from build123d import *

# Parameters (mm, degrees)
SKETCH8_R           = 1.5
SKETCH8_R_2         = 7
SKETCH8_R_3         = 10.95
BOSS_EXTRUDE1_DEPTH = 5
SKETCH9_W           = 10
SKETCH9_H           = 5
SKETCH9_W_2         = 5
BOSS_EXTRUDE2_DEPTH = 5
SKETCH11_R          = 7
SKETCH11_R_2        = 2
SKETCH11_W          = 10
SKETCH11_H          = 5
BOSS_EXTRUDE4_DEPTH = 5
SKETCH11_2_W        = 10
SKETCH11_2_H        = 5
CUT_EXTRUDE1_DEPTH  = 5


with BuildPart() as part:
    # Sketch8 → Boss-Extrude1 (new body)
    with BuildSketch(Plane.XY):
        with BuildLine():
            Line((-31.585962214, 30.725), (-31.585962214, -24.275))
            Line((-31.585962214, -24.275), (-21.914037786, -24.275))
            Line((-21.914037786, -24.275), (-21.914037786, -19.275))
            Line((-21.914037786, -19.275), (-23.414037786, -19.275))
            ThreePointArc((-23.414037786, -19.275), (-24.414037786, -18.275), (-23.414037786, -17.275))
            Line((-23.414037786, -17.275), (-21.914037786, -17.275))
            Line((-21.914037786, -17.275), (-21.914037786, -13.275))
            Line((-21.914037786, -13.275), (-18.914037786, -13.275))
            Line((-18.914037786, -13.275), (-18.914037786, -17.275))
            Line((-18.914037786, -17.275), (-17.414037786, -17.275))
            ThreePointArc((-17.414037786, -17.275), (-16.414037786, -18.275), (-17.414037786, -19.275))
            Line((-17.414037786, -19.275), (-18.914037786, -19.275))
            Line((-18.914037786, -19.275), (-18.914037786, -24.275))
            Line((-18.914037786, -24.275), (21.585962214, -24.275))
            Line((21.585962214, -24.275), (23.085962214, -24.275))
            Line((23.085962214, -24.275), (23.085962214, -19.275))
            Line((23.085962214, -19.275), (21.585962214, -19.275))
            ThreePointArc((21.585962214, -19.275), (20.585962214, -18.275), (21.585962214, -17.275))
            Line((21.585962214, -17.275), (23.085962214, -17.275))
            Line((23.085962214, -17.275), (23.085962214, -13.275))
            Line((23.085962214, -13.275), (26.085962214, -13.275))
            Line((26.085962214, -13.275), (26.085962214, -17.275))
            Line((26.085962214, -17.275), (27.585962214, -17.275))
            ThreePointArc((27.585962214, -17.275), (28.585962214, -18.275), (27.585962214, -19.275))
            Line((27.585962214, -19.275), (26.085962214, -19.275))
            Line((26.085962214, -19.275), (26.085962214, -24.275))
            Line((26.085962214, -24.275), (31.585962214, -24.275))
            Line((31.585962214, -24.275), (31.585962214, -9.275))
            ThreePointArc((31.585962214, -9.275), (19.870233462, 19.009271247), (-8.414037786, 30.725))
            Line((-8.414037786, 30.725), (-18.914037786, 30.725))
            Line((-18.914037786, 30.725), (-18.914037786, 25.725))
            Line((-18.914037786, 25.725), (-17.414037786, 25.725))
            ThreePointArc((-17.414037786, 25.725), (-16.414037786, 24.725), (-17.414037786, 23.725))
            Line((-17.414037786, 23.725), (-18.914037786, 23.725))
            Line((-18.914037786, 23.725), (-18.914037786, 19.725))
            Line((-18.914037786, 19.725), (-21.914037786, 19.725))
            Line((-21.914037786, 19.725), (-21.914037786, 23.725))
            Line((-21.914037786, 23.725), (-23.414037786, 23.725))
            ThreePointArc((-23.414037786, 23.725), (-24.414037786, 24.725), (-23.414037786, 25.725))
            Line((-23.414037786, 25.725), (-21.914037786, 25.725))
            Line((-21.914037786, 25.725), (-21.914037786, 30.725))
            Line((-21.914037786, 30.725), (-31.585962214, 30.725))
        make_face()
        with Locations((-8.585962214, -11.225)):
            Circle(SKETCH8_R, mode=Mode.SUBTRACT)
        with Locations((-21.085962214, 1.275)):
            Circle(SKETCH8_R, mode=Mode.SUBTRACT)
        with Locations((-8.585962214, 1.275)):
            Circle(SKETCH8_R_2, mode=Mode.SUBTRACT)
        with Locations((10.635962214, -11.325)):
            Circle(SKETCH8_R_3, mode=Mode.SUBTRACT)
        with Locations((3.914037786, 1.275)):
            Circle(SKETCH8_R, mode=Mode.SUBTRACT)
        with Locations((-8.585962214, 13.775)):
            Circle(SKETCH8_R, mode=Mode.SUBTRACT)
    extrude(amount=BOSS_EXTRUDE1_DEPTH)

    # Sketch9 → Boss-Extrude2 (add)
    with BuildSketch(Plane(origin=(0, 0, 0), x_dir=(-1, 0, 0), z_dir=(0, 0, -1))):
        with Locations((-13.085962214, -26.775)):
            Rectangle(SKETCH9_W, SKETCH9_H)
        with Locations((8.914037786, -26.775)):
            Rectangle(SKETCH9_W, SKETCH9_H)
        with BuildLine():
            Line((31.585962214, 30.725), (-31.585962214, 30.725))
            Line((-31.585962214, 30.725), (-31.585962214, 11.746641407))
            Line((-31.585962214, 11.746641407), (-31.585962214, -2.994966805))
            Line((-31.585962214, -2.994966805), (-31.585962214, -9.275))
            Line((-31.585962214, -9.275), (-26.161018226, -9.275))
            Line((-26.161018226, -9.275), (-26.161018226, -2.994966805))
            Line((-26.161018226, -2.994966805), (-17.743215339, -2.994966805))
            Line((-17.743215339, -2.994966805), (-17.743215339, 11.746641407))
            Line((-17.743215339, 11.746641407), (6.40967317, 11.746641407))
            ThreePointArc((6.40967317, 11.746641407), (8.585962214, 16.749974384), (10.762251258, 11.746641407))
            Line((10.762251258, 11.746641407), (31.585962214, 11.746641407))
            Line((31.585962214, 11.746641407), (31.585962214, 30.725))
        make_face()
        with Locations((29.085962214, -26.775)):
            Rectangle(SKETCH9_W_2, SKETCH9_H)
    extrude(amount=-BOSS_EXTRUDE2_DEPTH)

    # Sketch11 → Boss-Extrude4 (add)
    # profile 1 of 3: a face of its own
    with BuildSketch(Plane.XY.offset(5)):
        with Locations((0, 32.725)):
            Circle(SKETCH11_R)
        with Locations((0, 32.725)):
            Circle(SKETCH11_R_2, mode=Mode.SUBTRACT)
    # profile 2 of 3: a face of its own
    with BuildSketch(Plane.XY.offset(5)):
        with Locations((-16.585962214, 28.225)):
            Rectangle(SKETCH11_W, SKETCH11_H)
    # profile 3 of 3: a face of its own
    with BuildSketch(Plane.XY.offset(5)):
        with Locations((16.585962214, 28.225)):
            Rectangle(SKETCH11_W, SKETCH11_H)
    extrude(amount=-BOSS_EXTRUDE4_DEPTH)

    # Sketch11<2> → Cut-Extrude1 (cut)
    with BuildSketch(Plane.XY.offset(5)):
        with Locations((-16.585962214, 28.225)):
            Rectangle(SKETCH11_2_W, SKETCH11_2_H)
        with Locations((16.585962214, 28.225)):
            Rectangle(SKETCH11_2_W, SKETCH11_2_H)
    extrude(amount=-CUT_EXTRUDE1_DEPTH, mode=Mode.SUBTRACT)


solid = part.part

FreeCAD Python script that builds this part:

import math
import FreeCAD as App
import Part
import Sketcher
Q = App.Units.Quantity


def add_polygon(sketch, points):
    """Adds a closed chain of lines whose ends are joined by coincident constraints."""
    first, n = sketch.GeometryCount, len(points)
    for a, b in zip(points, points[1:] + points[:1]):
        sketch.addGeometry(Part.LineSegment(App.Vector(*a, 0), App.Vector(*b, 0)), False)
    for i in range(n):
        sketch.addConstraint(Sketcher.Constraint("Coincident", first + i, 2, first + (i + 1) % n, 1))

doc = App.newDocument("Part")
body = doc.addObject("PartDesign::Body", "Body")

sketch1 = doc.addObject("Sketcher::SketchObject", "Sketch")
body.addObject(sketch1)
sketch1.AttachmentSupport = (doc.XY_Plane, [""])
sketch1.MapMode = "FlatFace"
sketch1.addGeometry([
    Part.LineSegment(App.Vector(-31.6, 30.7, 0), App.Vector(-31.6, -24.3, 0)),
    Part.LineSegment(App.Vector(-31.6, -24.3, 0), App.Vector(-21.9, -24.3, 0)),
    Part.LineSegment(App.Vector(-21.9, -24.3, 0), App.Vector(-21.9, -19.3, 0)),
    Part.LineSegment(App.Vector(-21.9, -19.3, 0), App.Vector(-23.4, -19.3, 0)),
    Part.ArcOfCircle(Part.Circle(App.Vector(-23.4, -18.3, 0), App.Vector(0, 0, 1), 1), math.radians(90), math.radians(270)),
    Part.LineSegment(App.Vector(-23.4, -17.3, 0), App.Vector(-21.9, -17.3, 0)),
    Part.LineSegment(App.Vector(-21.9, -17.3, 0), App.Vector(-21.9, -13.3, 0)),
    Part.LineSegment(App.Vector(-21.9, -13.3, 0), App.Vector(-18.9, -13.3, 0)),
    Part.LineSegment(App.Vector(-18.9, -13.3, 0), App.Vector(-18.9, -17.3, 0)),
    Part.LineSegment(App.Vector(-18.9, -17.3, 0), App.Vector(-17.4, -17.3, 0)),
    Part.ArcOfCircle(Part.Circle(App.Vector(-17.4, -18.3, 0), App.Vector(0, 0, 1), 1), math.radians(-90), math.radians(90)),
    Part.LineSegment(App.Vector(-17.4, -19.3, 0), App.Vector(-18.9, -19.3, 0)),
    Part.LineSegment(App.Vector(-18.9, -19.3, 0), App.Vector(-18.9, -24.3, 0)),
    Part.LineSegment(App.Vector(-18.9, -24.3, 0), App.Vector(23.1, -24.3, 0)),
    Part.LineSegment(App.Vector(23.1, -24.3, 0), App.Vector(23.1, -19.3, 0)),
    Part.LineSegment(App.Vector(23.1, -19.3, 0), App.Vector(21.6, -19.3, 0)),
    Part.ArcOfCircle(Part.Circle(App.Vector(21.6, -18.3, 0), App.Vector(0, 0, 1), 1), math.radians(90), math.radians(270)),
    Part.LineSegment(App.Vector(21.6, -17.3, 0), App.Vector(23.1, -17.3, 0)),
    Part.LineSegment(App.Vector(23.1, -17.3, 0), App.Vector(23.1, -13.3, 0)),
    Part.LineSegment(App.Vector(23.1, -13.3, 0), App.Vector(26.1, -13.3, 0)),
    Part.LineSegment(App.Vector(26.1, -13.3, 0), App.Vector(26.1, -17.3, 0)),
    Part.LineSegment(App.Vector(26.1, -17.3, 0), App.Vector(27.6, -17.3, 0)),
    Part.ArcOfCircle(Part.Circle(App.Vector(27.6, -18.3, 0), App.Vector(0, 0, 1), 1), math.radians(-90), math.radians(90)),
    Part.LineSegment(App.Vector(27.6, -19.3, 0), App.Vector(26.1, -19.3, 0)),
    Part.LineSegment(App.Vector(26.1, -19.3, 0), App.Vector(26.1, -24.3, 0)),
    Part.LineSegment(App.Vector(26.1, -24.3, 0), App.Vector(31.6, -24.3, 0)),
    Part.LineSegment(App.Vector(31.6, -24.3, 0), App.Vector(31.6, -9.3, 0)),
    Part.ArcOfCircle(Part.Circle(App.Vector(-8.4, -9.3, 0), App.Vector(0, 0, 1), 40), math.radians(0), math.radians(90)),
    Part.LineSegment(App.Vector(-8.4, 30.7, 0), App.Vector(-18.9, 30.7, 0)),
    Part.LineSegment(App.Vector(-18.9, 30.7, 0), App.Vector(-18.9, 25.7, 0)),
    Part.LineSegment(App.Vector(-18.9, 25.7, 0), App.Vector(-17.4, 25.7, 0)),
    Part.ArcOfCircle(Part.Circle(App.Vector(-17.4, 24.7, 0), App.Vector(0, 0, 1), 1), math.radians(-90), math.radians(90)),
    Part.LineSegment(App.Vector(-17.4, 23.7, 0), App.Vector(-18.9, 23.7, 0)),
    Part.LineSegment(App.Vector(-18.9, 23.7, 0), App.Vector(-18.9, 19.7, 0)),
    Part.LineSegment(App.Vector(-18.9, 19.7, 0), App.Vector(-21.9, 19.7, 0)),
    Part.LineSegment(App.Vector(-21.9, 19.7, 0), App.Vector(-21.9, 23.7, 0)),
    Part.LineSegment(App.Vector(-21.9, 23.7, 0), App.Vector(-23.4, 23.7, 0)),
    Part.ArcOfCircle(Part.Circle(App.Vector(-23.4, 24.7, 0), App.Vector(0, 0, 1), 1), math.radians(90), math.radians(270)),
    Part.LineSegment(App.Vector(-23.4, 25.7, 0), App.Vector(-21.9, 25.7, 0)),
    Part.LineSegment(App.Vector(-21.9, 25.7, 0), App.Vector(-21.9, 30.7, 0)),
    Part.LineSegment(App.Vector(-21.9, 30.7, 0), App.Vector(-31.6, 30.7, 0)),
    Part.Circle(App.Vector(-8.6, -11.2, 0), App.Vector(0, 0, 1), 1.5),
    Part.Circle(App.Vector(10.6, -11.3, 0), App.Vector(0, 0, 1), 10.9),
    Part.Circle(App.Vector(-21.1, 1.3, 0), App.Vector(0, 0, 1), 1.5),
    Part.Circle(App.Vector(-8.6, 1.3, 0), App.Vector(0, 0, 1), 7),
    Part.Circle(App.Vector(-8.6, 13.8, 0), App.Vector(0, 0, 1), 1.5),
    Part.Circle(App.Vector(3.9, 1.3, 0), App.Vector(0, 0, 1), 1.5),
], False)
sketch1.addConstraint([
    Sketcher.Constraint("Coincident", 0, 2, 1, 1),
    Sketcher.Constraint("Coincident", 1, 2, 2, 1),
    Sketcher.Constraint("Coincident", 2, 2, 3, 1),
    Sketcher.Constraint("Tangent", 3, 2, 4, 2),
    Sketcher.Constraint("Tangent", 4, 1, 5, 1),
    Sketcher.Constraint("Coincident", 5, 2, 6, 1),
    Sketcher.Constraint("Coincident", 6, 2, 7, 1),
    Sketcher.Constraint("Coincident", 7, 2, 8, 1),
    Sketcher.Constraint("Coincident", 8, 2, 9, 1),
    Sketcher.Constraint("Tangent", 9, 2, 10, 2),
    Sketcher.Constraint("Tangent", 10, 1, 11, 1),
    Sketcher.Constraint("Coincident", 11, 2, 12, 1),
    Sketcher.Constraint("Coincident", 12, 2, 13, 1),
    Sketcher.Constraint("Coincident", 13, 2, 14, 1),
    Sketcher.Constraint("Coincident", 14, 2, 15, 1),
    Sketcher.Constraint("Tangent", 15, 2, 16, 2),
    Sketcher.Constraint("Tangent", 16, 1, 17, 1),
    Sketcher.Constraint("Coincident", 17, 2, 18, 1),
    Sketcher.Constraint("Coincident", 18, 2, 19, 1),
    Sketcher.Constraint("Coincident", 19, 2, 20, 1),
    Sketcher.Constraint("Coincident", 20, 2, 21, 1),
    Sketcher.Constraint("Tangent", 21, 2, 22, 2),
    Sketcher.Constraint("Tangent", 22, 1, 23, 1),
    Sketcher.Constraint("Coincident", 23, 2, 24, 1),
    Sketcher.Constraint("Coincident", 24, 2, 25, 1),
    Sketcher.Constraint("Coincident", 25, 2, 26, 1),
    Sketcher.Constraint("Tangent", 26, 2, 27, 1),
    Sketcher.Constraint("Tangent", 27, 2, 28, 1),
    Sketcher.Constraint("Coincident", 28, 2, 29, 1),
    Sketcher.Constraint("Coincident", 29, 2, 30, 1),
    Sketcher.Constraint("Tangent", 30, 2, 31, 2),
    Sketcher.Constraint("Tangent", 31, 1, 32, 1),
    Sketcher.Constraint("Coincident", 32, 2, 33, 1),
    Sketcher.Constraint("Coincident", 33, 2, 34, 1),
    Sketcher.Constraint("Coincident", 34, 2, 35, 1),
    Sketcher.Constraint("Coincident", 35, 2, 36, 1),
    Sketcher.Constraint("Tangent", 36, 2, 37, 2),
    Sketcher.Constraint("Tangent", 37, 1, 38, 1),
    Sketcher.Constraint("Coincident", 38, 2, 39, 1),
    Sketcher.Constraint("Coincident", 39, 2, 40, 1),
    Sketcher.Constraint("Coincident", 40, 2, 0, 1),
    Sketcher.Constraint("Vertical", 0),
    Sketcher.Constraint("Horizontal", 1),
    Sketcher.Constraint("Vertical", 2),
    Sketcher.Constraint("Horizontal", 3),
    Sketcher.Constraint("Horizontal", 5),
    Sketcher.Constraint("Vertical", 6),
    Sketcher.Constraint("Horizontal", 7),
    Sketcher.Constraint("Vertical", 8),
    Sketcher.Constraint("Horizontal", 9),
    Sketcher.Constraint("Horizontal", 11),
    Sketcher.Constraint("Vertical", 12),
    Sketcher.Constraint("Horizontal", 13),
    Sketcher.Constraint("Vertical", 14),
    Sketcher.Constraint("Horizontal", 15),
    Sketcher.Constraint("Horizontal", 17),
    Sketcher.Constraint("Vertical", 18),
    Sketcher.Constraint("Horizontal", 19),
    Sketcher.Constraint("Vertical", 20),
    Sketcher.Constraint("Horizontal", 21),
    Sketcher.Constraint("Horizontal", 23),
    Sketcher.Constraint("Vertical", 24),
    Sketcher.Constraint("Horizontal", 25),
    Sketcher.Constraint("Vertical", 26),
    Sketcher.Constraint("Horizontal", 28),
    Sketcher.Constraint("Vertical", 29),
    Sketcher.Constraint("Horizontal", 30),
    Sketcher.Constraint("Horizontal", 32),
    Sketcher.Constraint("Vertical", 33),
    Sketcher.Constraint("Horizontal", 34),
    Sketcher.Constraint("Vertical", 35),
    Sketcher.Constraint("Horizontal", 36),
    Sketcher.Constraint("Horizontal", 38),
    Sketcher.Constraint("Vertical", 39),
    Sketcher.Constraint("Horizontal", 40),
    Sketcher.Constraint("Equal", 4, 10),
    Sketcher.Constraint("Equal", 10, 16),
    Sketcher.Constraint("Equal", 16, 22),
    Sketcher.Constraint("Equal", 22, 31),
    Sketcher.Constraint("Equal", 31, 37),
    Sketcher.Constraint("Equal", 41, 43),
    Sketcher.Constraint("Equal", 43, 45),
    Sketcher.Constraint("Equal", 45, 46),
    Sketcher.Constraint("Symmetric", 0, 2, 25, 2, -2),
    Sketcher.Constraint("Horizontal", 4, 3, 10, 3),
    Sketcher.Constraint("Horizontal", 10, 3, 16, 3),
    Sketcher.Constraint("Horizontal", 16, 3, 22, 3),
    Sketcher.Constraint("Horizontal", 31, 3, 37, 3),
    Sketcher.Constraint("Horizontal", 43, 3, 44, 3),
    Sketcher.Constraint("Horizontal", 44, 3, 46, 3),
    Sketcher.Constraint("Horizontal", 1, 2, 12, 2),
    Sketcher.Constraint("Horizontal", 7, 2, 18, 2),
    Sketcher.Constraint("Horizontal", 28, 2, 39, 2),
    Sketcher.Constraint("Vertical", 10, 3, 31, 3),
    Sketcher.Constraint("Vertical", 4, 3, 37, 3),
    Sketcher.Constraint("Vertical", 41, 3, 44, 3),
    Sketcher.Constraint("Vertical", 44, 3, 45, 3),
    Sketcher.Constraint("Vertical", 2, 2, 5, 2),
    Sketcher.Constraint("Vertical", 8, 2, 11, 2),
    Sketcher.Constraint("Vertical", 14, 2, 17, 2),
    Sketcher.Constraint("Vertical", 20, 2, 23, 2),
    Sketcher.Constraint("Vertical", 12, 2, 28, 2),
    Sketcher.Constraint("Vertical", 29, 2, 32, 2),
    Sketcher.Constraint("Vertical", 6, 2, 34, 2),
    Sketcher.Constraint("Vertical", 35, 2, 38, 2),
    Sketcher.Constraint("Equal", 5, 9),
    Sketcher.Constraint("Equal", 11, 15),
    Sketcher.Constraint("Equal", 7, 19),
    Sketcher.Constraint("Equal", 17, 21),
    Sketcher.Constraint("Equal", 24, 29),
    Sketcher.Constraint("Equal", 20, 33),
    Sketcher.Constraint("Diameter", 41, Q("3 mm")),
    Sketcher.Constraint("Diameter", 44, Q("14 mm")),
    Sketcher.Constraint("Radius", 4, Q("1 mm")),
    Sketcher.Constraint("Radius", 27, Q("40 mm")),
    Sketcher.Constraint("Diameter", 42, Q("21.9 mm")),
    Sketcher.Constraint("DistanceX", 7, 1, 7, 2, Q("3 mm")),
    Sketcher.Constraint("DistanceX", 13, 1, 13, 2, Q("42 mm")),
    Sketcher.Constraint("DistanceY", 0, 2, 0, 1, Q("55 mm")),
    Sketcher.Constraint("DistanceY", 2, 1, 2, 2, Q("5 mm")),
    Sketcher.Constraint("DistanceY", 6, 1, 6, 2, Q("4 mm")),
    Sketcher.Constraint("DistanceX", 3, 2, 3, 1, Q("1.5 mm")),
    Sketcher.Constraint("DistanceX", 25, 1, 25, 2, Q("5.5 mm")),
    Sketcher.Constraint("DistanceX", 0, 2, 41, 3, Q("23 mm")),
    Sketcher.Constraint("DistanceY", 42, 3, 41, 3, Q("0.1 mm")),
    Sketcher.Constraint("DistanceX", 43, 3, 41, 3, Q("12.5 mm")),
    Sketcher.Constraint("DistanceY", 41, 3, 43, 3, Q("12.5 mm")),
    Sketcher.Constraint("DistanceY", 44, 3, 45, 3, Q("12.5 mm")),
    Sketcher.Constraint("DistanceX", 44, 3, 46, 3, Q("12.5 mm")),
    Sketcher.Constraint("DistanceY", 41, 3, 27, 3, Q("1.95 mm")),
    Sketcher.Constraint("DistanceX", 42, 3, 16, 3, Q("10.95 mm")),
    Sketcher.Constraint("DistanceY", 4, 3, -1, 1, Q("18.275 mm")),
    Sketcher.Constraint("DistanceX", 1, 1, 1, 2, Q("9.671924 mm")),
])
pad1 = doc.addObject("PartDesign::Pad", "Pad")
body.addObject(pad1)
pad1.Profile = sketch1
pad1.Length = 5

sketch2 = doc.addObject("Sketcher::SketchObject", "Sketch001")
body.addObject(sketch2)
sketch2.AttachmentSupport = (doc.XY_Plane, [""])
sketch2.MapMode = "FlatFace"
add_polygon(sketch2, [(18.1, -24.3), (18.1, -29.3), (8.1, -29.3), (8.1, -24.3)])
add_polygon(sketch2, [(-3.9, -24.3), (-3.9, -29.3), (-13.9, -29.3), (-13.9, -24.3)])
sketch2.addGeometry(Part.LineSegment(App.Vector(-31.6, 30.7, 0), App.Vector(31.6, 30.7, 0)), False)
sketch2.addGeometry(Part.LineSegment(App.Vector(31.6, 30.7, 0), App.Vector(31.6, -9.3, 0)), False)
sketch2.addGeometry(Part.LineSegment(App.Vector(31.6, -9.3, 0), App.Vector(26.2, -9.3, 0)), False)
sketch2.addGeometry(Part.LineSegment(App.Vector(26.2, -9.3, 0), App.Vector(26.2, -3, 0)), False)
sketch2.addGeometry(Part.LineSegment(App.Vector(26.2, -3, 0), App.Vector(17.7, -3, 0)), False)
sketch2.addGeometry(Part.LineSegment(App.Vector(17.7, -3, 0), App.Vector(17.7, 11.7, 0)), False)
sketch2.addGeometry(Part.LineSegment(App.Vector(17.7, 11.7, 0), App.Vector(-6.4, 11.7, 0)), False)
sketch2.addGeometry(Part.ArcOfCircle(Part.Circle(App.Vector(-8.6, 13.8, 0), App.Vector(0, 0, 1), 3), math.radians(-43), math.radians(223)), False)
sketch2.addGeometry(Part.LineSegment(App.Vector(-10.8, 11.7, 0), App.Vector(-31.6, 11.7, 0)), False)
sketch2.addGeometry(Part.LineSegment(App.Vector(-31.6, 11.7, 0), App.Vector(-31.6, 30.7, 0)), False)
add_polygon(sketch2, [(-26.6, -24.3), (-26.6, -29.3), (-31.6, -29.3), (-31.6, -24.3)])
sketch2.addConstraint([
    Sketcher.Constraint("Coincident", 8, 2, 9, 1),
    Sketcher.Constraint("Coincident", 9, 2, 10, 1),
    Sketcher.Constraint("Coincident", 10, 2, 11, 1),
    Sketcher.Constraint("Coincident", 11, 2, 12, 1),
    Sketcher.Constraint("Coincident", 12, 2, 13, 1),
    Sketcher.Constraint("Coincident", 13, 2, 14, 1),
    Sketcher.Constraint("Coincident", 14, 2, 15, 1),
    Sketcher.Constraint("Coincident", 15, 2, 16, 1),
    Sketcher.Constraint("Coincident", 16, 2, 17, 1),
    Sketcher.Constraint("Coincident", 17, 2, 8, 1),
    Sketcher.Constraint("Vertical", 0),
    Sketcher.Constraint("Horizontal", 1),
    Sketcher.Constraint("Vertical", 2),
    Sketcher.Constraint("Horizontal", 3),
    Sketcher.Constraint("Vertical", 4),
    Sketcher.Constraint("Horizontal", 5),
    Sketcher.Constraint("Vertical", 6),
    Sketcher.Constraint("Horizontal", 7),
    Sketcher.Constraint("Horizontal", 8),
    Sketcher.Constraint("Vertical", 9),
    Sketcher.Constraint("Horizontal", 10),
    Sketcher.Constraint("Vertical", 11),
    Sketcher.Constraint("Horizontal", 12),
    Sketcher.Constraint("Vertical", 13),
    Sketcher.Constraint("Horizontal", 14),
    Sketcher.Constraint("Horizontal", 16),
    Sketcher.Constraint("Vertical", 17),
    Sketcher.Constraint("Vertical", 18),
    Sketcher.Constraint("Horizontal", 19),
    Sketcher.Constraint("Vertical", 20),
    Sketcher.Constraint("Horizontal", 21),
    Sketcher.Constraint("Horizontal", 1, 2, 4, 2),
    Sketcher.Constraint("Horizontal", 3, 2, 6, 2),
    Sketcher.Constraint("Horizontal", 14, 2, 15, 2),
    Sketcher.Constraint("Horizontal", 5, 2, 18, 2),
    Sketcher.Constraint("Horizontal", 7, 2, 20, 2),
    Sketcher.Constraint("Vertical", 17, 2, 19, 2),
    Sketcher.Constraint("Equal", 3, 5),
    Sketcher.Constraint("Equal", 21, 0),
    Sketcher.Constraint("DistanceX", 1, 2, 1, 1, Q("10 mm")),
    Sketcher.Constraint("DistanceX", 19, 2, 19, 1, Q("5 mm")),
    Sketcher.Constraint("DistanceY", 9, 2, 9, 1, Q("40 mm")),
    Sketcher.Constraint("DistanceX", 4, 2, 1, 2, Q("12 mm")),
    Sketcher.Constraint("DistanceY", 3, 2, 8, 2, Q("55 mm")),
    Sketcher.Constraint("DistanceX", 16, 2, 15, 3, Q("23 mm")),
    Sketcher.Constraint("DistanceX", 3, 2, 8, 2, Q("13.5 mm")),
    Sketcher.Constraint("DistanceY", 0, 2, 15, 3, Q("43.05 mm")),
    Sketcher.Constraint("DistanceY", -1, 1, 15, 3, Q("13.775 mm")),
    Sketcher.Constraint("Radius", 15, Q("2.974974 mm")),
    Sketcher.Constraint("DistanceX", 14, 2, 14, 1, Q("24.152889 mm")),
    Sketcher.Constraint("DistanceX", 16, 2, 16, 1, Q("20.823711 mm")),
    Sketcher.Constraint("DistanceY", 13, 1, 13, 2, Q("14.741608 mm")),
    Sketcher.Constraint("DistanceX", 8, 1, 8, 2, Q("63.171924 mm")),
    Sketcher.Constraint("DistanceX", 10, 2, 10, 1, Q("5.424944 mm")),
    Sketcher.Constraint("DistanceX", -1, 1, 10, 2, Q("26.161018 mm")),
])
pad2 = doc.addObject("PartDesign::Pad", "Pad001")
body.addObject(pad2)
pad2.Profile = sketch2
pad2.Length = 5

sketch3 = doc.addObject("Sketcher::SketchObject", "Sketch002")
body.addObject(sketch3)
sketch3.AttachmentSupport = (doc.XY_Plane, [""])
sketch3.MapMode = "FlatFace"
sketch3.AttachmentOffset = App.Placement(App.Vector(0, 0, 5), App.Rotation())
sketch3.addGeometry(Part.Circle(App.Vector(0, 32.7, 0), App.Vector(0, 0, 1), 7), False)
sketch3.addGeometry(Part.Circle(App.Vector(0, 32.7, 0), App.Vector(0, 0, 1), 2), False)
add_polygon(sketch3, [(-21.6, 30.7), (-21.6, 25.7), (-11.6, 25.7), (-11.6, 30.7)])
add_polygon(sketch3, [(11.6, 30.7), (11.6, 25.7), (21.6, 25.7), (21.6, 30.7)])
sketch3.addConstraint([
    Sketcher.Constraint("Vertical", 2),
    Sketcher.Constraint("Horizontal", 3),
    Sketcher.Constraint("Vertical", 4),
    Sketcher.Constraint("Horizontal", 5),
    Sketcher.Constraint("Vertical", 6),
    Sketcher.Constraint("Horizontal", 7),
    Sketcher.Constraint("Vertical", 8),
    Sketcher.Constraint("Horizontal", 9),
    Sketcher.Constraint("Coincident", 1, 3, 0, 3),
    Sketcher.Constraint("Symmetric", 3, 2, 6, 2, -2),
    Sketcher.Constraint("Symmetric", 5, 2, 8, 2, -2),
    Sketcher.Constraint("PointOnObject", 0, 3, -2),
    Sketcher.Constraint("Diameter", 0, Q("14 mm")),
    Sketcher.Constraint("Diameter", 1, Q("4 mm")),
    Sketcher.Constraint("DistanceX", 3, 1, 3, 2, Q("10 mm")),
    Sketcher.Constraint("DistanceY", 2, 2, 2, 1, Q("5 mm")),
    Sketcher.Constraint("DistanceY", 2, 2, 0, 3, Q("7 mm")),
    Sketcher.Constraint("DistanceY", -1, 1, 0, 3, Q("32.725 mm")),
    Sketcher.Constraint("DistanceX", 2, 2, -1, 1, Q("21.585962 mm")),
])
pad3 = doc.addObject("PartDesign::Pad", "Pad002")
body.addObject(pad3)
pad3.Profile = sketch3
pad3.Length = 5
pad3.Reversed = True

sketch4 = doc.addObject("Sketcher::SketchObject", "Sketch003")
body.addObject(sketch4)
sketch4.AttachmentSupport = (doc.XY_Plane, [""])
sketch4.MapMode = "FlatFace"
sketch4.AttachmentOffset = App.Placement(App.Vector(0, 0, 5), App.Rotation())
add_polygon(sketch4, [(-22, 31), (-22, 26), (-12, 26), (-12, 31)])
add_polygon(sketch4, [(12, 31), (12, 26), (22, 26), (22, 31)])
sketch4.addConstraint([
    Sketcher.Constraint("Vertical", 0),
    Sketcher.Constraint("Horizontal", 1),
    Sketcher.Constraint("Vertical", 2),
    Sketcher.Constraint("Horizontal", 3),
    Sketcher.Constraint("Vertical", 4),
    Sketcher.Constraint("Horizontal", 5),
    Sketcher.Constraint("Vertical", 6),
    Sketcher.Constraint("Horizontal", 7),
    Sketcher.Constraint("Symmetric", 1, 2, 4, 2, -2),
    Sketcher.Constraint("Symmetric", 3, 2, 6, 2, -2),
    Sketcher.Constraint("DistanceX", 1, 1, 1, 2, Q("10 mm")),
    Sketcher.Constraint("DistanceY", 0, 2, 0, 1, Q("5 mm")),
    Sketcher.Constraint("DistanceY", -1, 1, 0, 2, Q("25.725 mm")),
    Sketcher.Constraint("DistanceX", 0, 2, -1, 1, Q("21.585962 mm")),
])
pocket1 = doc.addObject("PartDesign::Pocket", "Pocket")
body.addObject(pocket1)
pocket1.Profile = sketch4
pocket1.Length = 5

doc.recompute()
